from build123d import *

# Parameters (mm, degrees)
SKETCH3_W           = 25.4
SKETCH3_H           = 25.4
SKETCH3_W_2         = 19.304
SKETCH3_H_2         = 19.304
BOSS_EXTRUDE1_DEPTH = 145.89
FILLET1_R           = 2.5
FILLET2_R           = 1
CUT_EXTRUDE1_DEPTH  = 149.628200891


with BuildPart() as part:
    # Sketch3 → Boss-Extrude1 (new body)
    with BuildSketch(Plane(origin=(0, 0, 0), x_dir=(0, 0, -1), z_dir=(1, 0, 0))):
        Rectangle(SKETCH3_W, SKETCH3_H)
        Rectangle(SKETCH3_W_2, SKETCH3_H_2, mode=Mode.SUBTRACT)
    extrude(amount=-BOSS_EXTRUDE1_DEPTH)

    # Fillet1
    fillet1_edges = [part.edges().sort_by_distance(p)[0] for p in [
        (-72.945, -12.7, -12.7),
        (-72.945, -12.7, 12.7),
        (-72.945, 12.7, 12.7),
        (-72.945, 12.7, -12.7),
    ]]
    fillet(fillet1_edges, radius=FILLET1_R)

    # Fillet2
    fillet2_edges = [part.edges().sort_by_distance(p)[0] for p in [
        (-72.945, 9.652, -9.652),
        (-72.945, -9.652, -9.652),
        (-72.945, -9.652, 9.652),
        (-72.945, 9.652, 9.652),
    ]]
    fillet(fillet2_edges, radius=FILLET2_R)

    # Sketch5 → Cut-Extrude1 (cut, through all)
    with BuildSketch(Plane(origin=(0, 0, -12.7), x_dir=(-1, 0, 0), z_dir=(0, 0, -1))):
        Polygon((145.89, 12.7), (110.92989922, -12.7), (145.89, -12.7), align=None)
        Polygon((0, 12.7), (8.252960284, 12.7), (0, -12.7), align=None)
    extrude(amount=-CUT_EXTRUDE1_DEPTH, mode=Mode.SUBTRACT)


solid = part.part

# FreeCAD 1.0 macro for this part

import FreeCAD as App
import Part
import Sketcher

V = App.Vector
Q = App.Units.Quantity


def edges_at(feature, points):
    """Names of the edges that pass closest to the given points."""
    edges = feature.Shape.Edges
    near = lambda p: min(range(len(edges)), key=lambda i: edges[i].distToShape(Part.Vertex(*p))[0])
    return sorted({f"Edge{near(p) + 1}" for p in points})

doc = App.newDocument("Part")
body = doc.addObject("PartDesign::Body", "Body")

# Sketch on YZ plane
sketch1 = body.newObject("Sketcher::SketchObject", "Sketch")
sketch1.AttachmentSupport = (doc.getObject("YZ_Plane"), [""])
sketch1.MapMode = "FlatFace"
sketch1.addGeometry([
    Part.LineSegment(V(12.7, 12.7, 0), V(-12.7, 12.7, 0)),  # 0
    Part.LineSegment(V(-12.7, 12.7, 0), V(-12.7, -12.7, 0)),  # 1
    Part.LineSegment(V(-12.7, -12.7, 0), V(12.7, -12.7, 0)),  # 2
    Part.LineSegment(V(12.7, -12.7, 0), V(12.7, 12.7, 0)),  # 3
    Part.LineSegment(V(-9.652, -9.652, 0), V(-9.652, 9.652, 0)),  # 4
    Part.LineSegment(V(-9.652, 9.652, 0), V(9.652, 9.652, 0)),  # 5
    Part.LineSegment(V(9.652, 9.652, 0), V(9.652, -9.652, 0)),  # 6
    Part.LineSegment(V(9.652, -9.652, 0), V(-9.652, -9.652, 0)),  # 7
], False)
sketch1.addConstraint([
    Sketcher.Constraint("Coincident", 0, 2, 1, 1),
    Sketcher.Constraint("Coincident", 1, 2, 2, 1),
    Sketcher.Constraint("Coincident", 2, 2, 3, 1),
    Sketcher.Constraint("Coincident", 3, 2, 0, 1),
    Sketcher.Constraint("Coincident", 4, 2, 5, 1),
    Sketcher.Constraint("Coincident", 5, 2, 6, 1),
    Sketcher.Constraint("Coincident", 6, 2, 7, 1),
    Sketcher.Constraint("Coincident", 7, 2, 4, 1),
    Sketcher.Constraint("Horizontal", 0),
    Sketcher.Constraint("Vertical", 1),
    Sketcher.Constraint("Horizontal", 2),
    Sketcher.Constraint("Vertical", 3),
    Sketcher.Constraint("Vertical", 4),
    Sketcher.Constraint("Horizontal", 5),
    Sketcher.Constraint("Vertical", 6),
    Sketcher.Constraint("Horizontal", 7),
    Sketcher.Constraint("Symmetric", 0, 2, 2, 2, -1, 1),
    Sketcher.Constraint("Symmetric", 4, 2, 6, 2, -1, 1),
    Sketcher.Constraint("Equal", 2, 1),
    Sketcher.Constraint("Equal", 7, 4),
    Sketcher.Constraint("DistanceX", 0, 2, 0, 1, Q("25.4 mm")),
    Sketcher.Constraint("DistanceX", 5, 1, 5, 2, Q("19.304 mm")),
])
pad1 = body.newObject("PartDesign::Pad", "Pad")
pad1.Profile = sketch1
pad1.Length = 145.89
pad1.Reversed = True
doc.recompute()

fillet = body.newObject("PartDesign::Fillet", "Fillet")
fillet.Base = (pad1, edges_at(pad1, [
    (-72.945, -12.7, -12.7),
    (-72.945, -12.7, 12.7),
    (-72.945, 12.7, 12.7),
    (-72.945, 12.7, -12.7),
]))
fillet.Radius = 2.5
doc.recompute()

fillet2 = body.newObject("PartDesign::Fillet", "Fillet001")
fillet2.Base = (fillet, edges_at(fillet, [
    (-72.945, 9.652, -9.652),
    (-72.945, -9.652, -9.652),
    (-72.945, -9.652, 9.652),
    (-72.945, 9.652, 9.652),
]))
fillet2.Radius = 1

# Sketch on XY plane
sketch2 = body.newObject("Sketcher::SketchObject", "Sketch001")
sketch2.AttachmentSupport = (doc.getObject("XY_Plane"), [""])
sketch2.MapMode = "FlatFace"
sketch2.AttachmentOffset = App.Placement(V(0, 0, -12.7), App.Rotation())
sketch2.addGeometry([
    Part.LineSegment(V(-145.89, 12.7, 0), V(-110.929899, -12.7, 0)),  # 0
    Part.LineSegment(V(-110.929899, -12.7, 0), V(-145.89, -12.7, 0)),  # 1
    Part.LineSegment(V(-145.89, -12.7, 0), V(-145.89, 12.7, 0)),  # 2
    Part.LineSegment(V(-8.25296, 12.7, 0), V(0, 12.7, 0)),  # 3
    Part.LineSegment(V(0, 12.7, 0), V(0, -12.7, 0)),  # 4
    Part.LineSegment(V(0, -12.7, 0), V(-8.25296, 12.7, 0)),  # 5
], False)
sketch2.addConstraint([
    Sketcher.Constraint("Coincident", 0, 2, 1, 1),
    Sketcher.Constraint("Coincident", 1, 2, 2, 1),
    Sketcher.Constraint("Coincident", 2, 2, 0, 1),
    Sketcher.Constraint("Coincident", 3, 2, 4, 1),
    Sketcher.Constraint("Coincident", 4, 2, 5, 1),
    Sketcher.Constraint("Coincident", 5, 2, 3, 1),
    Sketcher.Constraint("Horizontal", 1),
    Sketcher.Constraint("Vertical", 2),
    Sketcher.Constraint("Horizontal", 3),
    Sketcher.Constraint("Vertical", 4),
    Sketcher.Constraint("Symmetric", 3, 2, 4, 2, -1, 1),
    Sketcher.Constraint("Horizontal", 2, 2, 3, 2),
    Sketcher.Constraint("Horizontal", 1, 2, 4, 2),
    Sketcher.Constraint("Angle", 0, Q("-36 deg")),
    Sketcher.Constraint("Angle", 5, Q("108 deg")),
    Sketcher.Constraint("DistanceY", 2, 1, 2, 2, Q("25.4 mm")),
    Sketcher.Constraint("DistanceX", 1, 2, -1, 1, Q("145.89 mm")),
])
pocket1 = body.newObject("PartDesign::Pocket", "Pocket")
pocket1.Profile = sketch2
pocket1.Type = "ThroughAll"
pocket1.Reversed = True

doc.recompute()
